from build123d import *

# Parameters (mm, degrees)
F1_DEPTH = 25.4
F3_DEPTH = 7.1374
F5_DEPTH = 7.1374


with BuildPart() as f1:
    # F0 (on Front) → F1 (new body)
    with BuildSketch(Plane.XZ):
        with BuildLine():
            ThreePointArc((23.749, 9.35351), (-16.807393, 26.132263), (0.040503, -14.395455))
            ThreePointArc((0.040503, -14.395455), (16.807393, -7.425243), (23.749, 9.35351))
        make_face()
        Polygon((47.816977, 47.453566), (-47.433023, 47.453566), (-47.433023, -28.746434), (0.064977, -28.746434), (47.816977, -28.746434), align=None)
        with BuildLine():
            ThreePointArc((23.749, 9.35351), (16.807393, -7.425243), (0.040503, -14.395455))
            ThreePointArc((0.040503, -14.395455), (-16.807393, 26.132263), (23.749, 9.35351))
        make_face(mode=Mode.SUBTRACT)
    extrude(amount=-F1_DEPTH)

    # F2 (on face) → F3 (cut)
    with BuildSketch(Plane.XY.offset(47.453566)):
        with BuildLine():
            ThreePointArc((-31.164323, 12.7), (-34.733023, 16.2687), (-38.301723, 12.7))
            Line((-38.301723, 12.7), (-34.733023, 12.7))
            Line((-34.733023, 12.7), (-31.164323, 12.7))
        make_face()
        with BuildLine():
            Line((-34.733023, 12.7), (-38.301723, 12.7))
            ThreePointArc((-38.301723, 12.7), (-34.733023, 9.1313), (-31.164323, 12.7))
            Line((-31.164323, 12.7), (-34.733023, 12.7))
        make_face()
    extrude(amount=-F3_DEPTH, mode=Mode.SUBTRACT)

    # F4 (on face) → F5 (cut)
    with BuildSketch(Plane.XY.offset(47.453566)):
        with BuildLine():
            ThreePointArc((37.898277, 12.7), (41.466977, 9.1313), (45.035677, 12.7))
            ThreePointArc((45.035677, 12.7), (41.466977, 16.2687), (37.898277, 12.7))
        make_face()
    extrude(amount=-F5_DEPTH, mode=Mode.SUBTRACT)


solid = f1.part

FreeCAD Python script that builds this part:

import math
import FreeCAD as App
import Part
import Sketcher
Q = App.Units.Quantity

doc = App.newDocument("Part")
body = doc.addObject("PartDesign::Body", "Body")

# Sketch on XZ plane
sketch1 = body.newObject("Sketcher::SketchObject", "Sketch")
sketch1.AttachmentSupport = (doc.getObject("XZ_Plane"), [""])
sketch1.MapMode = "FlatFace"
sketch1.addGeometry([
    Part.LineSegment(App.Vector(48, 47, 0), App.Vector(-47, 47, 0)),  # 0
    Part.LineSegment(App.Vector(-47, 47, 0), App.Vector(-47, -29, 0)),  # 1
    Part.LineSegment(App.Vector(-47, -29, 0), App.Vector(48, -29, 0)),  # 2
    Part.LineSegment(App.Vector(48, -29, 0), App.Vector(48, 47, 0)),  # 3
    Part.ArcOfCircle(Part.Circle(App.Vector(0, 9, 0), App.Vector(0, 0, 1), 24), math.radians(0), math.radians(270)),  # 4
    Part.ArcOfCircle(Part.Circle(App.Vector(0, 9, 0), App.Vector(0, 0, 1), 24), math.radians(-90), math.radians(0)),  # 5
], False)
sketch1.addConstraint([
    Sketcher.Constraint("Coincident", 0, 2, 1, 1),
    Sketcher.Constraint("Coincident", 1, 2, 2, 1),
    Sketcher.Constraint("Coincident", 2, 2, 3, 1),
    Sketcher.Constraint("Coincident", 3, 2, 0, 1),
    Sketcher.Constraint("Tangent", 4, 1, 5, 2),
    Sketcher.Constraint("Coincident", 5, 1, 4, 2),
    Sketcher.Constraint("Horizontal", 0),
    Sketcher.Constraint("Vertical", 1),
    Sketcher.Constraint("Horizontal", 2),
    Sketcher.Constraint("Vertical", 3),
    Sketcher.Constraint("PointOnObject", 4, 3, -2),
    Sketcher.Constraint("Horizontal", 5, 3, 4, 1),
    Sketcher.Constraint("DistanceY", 1, 2, 1, 1, Q("3 in")),
    Sketcher.Constraint("Radius", 4, Q("0.935 in")),
    Sketcher.Constraint("DistanceX", 0, 2, 0, 1, Q("3.75 in")),
    Sketcher.Constraint("DistanceX", 5, 3, 5, 1, 0.040502),
    Sketcher.Constraint("DistanceY", -1, 1, 4, 3, 9.35351),
    Sketcher.Constraint("DistanceY", 1, 2, 5, 1, 14.350979),
    Sketcher.Constraint("DistanceX", 0, 2, -1, 1, 47.433023),
])
pad1 = body.newObject("PartDesign::Pad", "Pad")
pad1.Profile = sketch1
pad1.Length = Q("1 in")
pad1.Reversed = True

# Sketch on XY plane
sketch2 = body.newObject("Sketcher::SketchObject", "Sketch001")
sketch2.AttachmentSupport = (doc.getObject("XY_Plane"), [""])
sketch2.MapMode = "FlatFace"
sketch2.AttachmentOffset = App.Placement(App.Vector(0, 0, 47.453566), App.Rotation())
sketch2.addGeometry(Part.Circle(App.Vector(-34.7, 12.7, 0), App.Vector(0, 0, 1), 3.6), False)
sketch2.addConstraint([
    Sketcher.Constraint("Diameter", 0, Q("0.281 in")),
    Sketcher.Constraint("DistanceY", -1, 1, 0, 3, Q("0.5 in")),
    Sketcher.Constraint("DistanceX", 0, 3, -1, 1, 34.733023),
])
pocket1 = body.newObject("PartDesign::Pocket", "Pocket")
pocket1.Profile = sketch2
pocket1.Length = Q("0.281 in")

# Sketch on XY plane
sketch3 = body.newObject("Sketcher::SketchObject", "Sketch002")
sketch3.AttachmentSupport = (doc.getObject("XY_Plane"), [""])
sketch3.MapMode = "FlatFace"
sketch3.AttachmentOffset = App.Placement(App.Vector(0, 0, 47.453566), App.Rotation())
sketch3.addGeometry(Part.Circle(App.Vector(41.5, 12.7, 0), App.Vector(0, 0, 1), 3.6), False)
sketch3.addConstraint([
    Sketcher.Constraint("Diameter", 0, Q("0.281 in")),
    Sketcher.Constraint("DistanceY", -1, 1, 0, 3, Q("0.5 in")),
    Sketcher.Constraint("DistanceX", -1, 1, 0, 3, 41.466977),
])
pocket2 = body.newObject("PartDesign::Pocket", "Pocket001")
pocket2.Profile = sketch3
pocket2.Length = Q("0.281 in")

doc.recompute()
